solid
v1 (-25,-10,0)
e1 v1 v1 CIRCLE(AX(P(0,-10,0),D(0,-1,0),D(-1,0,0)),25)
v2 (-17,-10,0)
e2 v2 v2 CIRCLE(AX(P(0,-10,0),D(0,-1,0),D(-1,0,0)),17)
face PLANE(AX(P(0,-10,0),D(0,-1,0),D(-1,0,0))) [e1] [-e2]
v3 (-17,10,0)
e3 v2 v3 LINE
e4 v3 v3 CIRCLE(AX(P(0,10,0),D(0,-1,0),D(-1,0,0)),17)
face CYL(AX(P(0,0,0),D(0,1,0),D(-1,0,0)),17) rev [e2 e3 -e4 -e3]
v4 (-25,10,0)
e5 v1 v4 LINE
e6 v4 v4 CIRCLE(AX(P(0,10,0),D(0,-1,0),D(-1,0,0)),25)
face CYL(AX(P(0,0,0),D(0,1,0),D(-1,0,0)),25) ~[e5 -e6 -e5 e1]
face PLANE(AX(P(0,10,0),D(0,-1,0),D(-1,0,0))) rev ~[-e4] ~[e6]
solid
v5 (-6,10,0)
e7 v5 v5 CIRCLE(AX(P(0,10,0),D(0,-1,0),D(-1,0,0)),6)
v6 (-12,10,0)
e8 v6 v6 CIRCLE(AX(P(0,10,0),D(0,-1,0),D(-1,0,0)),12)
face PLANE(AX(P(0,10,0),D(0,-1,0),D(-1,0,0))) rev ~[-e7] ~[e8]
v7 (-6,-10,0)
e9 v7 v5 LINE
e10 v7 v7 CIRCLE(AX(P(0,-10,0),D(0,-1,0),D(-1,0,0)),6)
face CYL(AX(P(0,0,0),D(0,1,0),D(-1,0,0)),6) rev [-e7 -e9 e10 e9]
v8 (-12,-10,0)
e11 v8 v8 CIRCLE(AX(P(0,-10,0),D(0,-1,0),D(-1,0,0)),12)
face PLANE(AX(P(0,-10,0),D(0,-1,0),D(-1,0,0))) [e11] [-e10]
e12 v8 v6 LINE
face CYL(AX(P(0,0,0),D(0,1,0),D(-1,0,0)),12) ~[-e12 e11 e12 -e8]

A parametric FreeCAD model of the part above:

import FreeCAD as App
import Part
import Sketcher
from FreeCAD import Vector
Q = App.Units.Quantity

doc = App.newDocument("Part")
body = doc.addObject("PartDesign::Body", "Body")

sketch1 = body.newObject("Sketcher::SketchObject", "Sketch")
sketch1.AttachmentSupport = (doc.getObject("XY_Plane"), [""])
sketch1.MapMode = "FlatFace"
sketch1.addGeometry([
    Part.LineSegment(Vector(-25, 10, 0), Vector(-25, -10, 0)),
    Part.LineSegment(Vector(-25, -10, 0), Vector(-17, -10, 0)),
    Part.LineSegment(Vector(-17, -10, 0), Vector(-17, 10, 0)),
    Part.LineSegment(Vector(-17, 10, 0), Vector(-25, 10, 0)),
], False)
sketch1.addConstraint([
    Sketcher.Constraint("Coincident", 0, 2, 1, 1),
    Sketcher.Constraint("Coincident", 1, 2, 2, 1),
    Sketcher.Constraint("Coincident", 2, 2, 3, 1),
    Sketcher.Constraint("Coincident", 3, 2, 0, 1),
    Sketcher.Constraint("Vertical", 0),
    Sketcher.Constraint("Horizontal", 1),
    Sketcher.Constraint("Vertical", 2),
    Sketcher.Constraint("Horizontal", 3),
    Sketcher.Constraint("DistanceX", 1, 1, 1, 2, Q("8 mm")),
    Sketcher.Constraint("DistanceY", 0, 2, 0, 1, Q("20 mm")),
    Sketcher.Constraint("DistanceX", 0, 2, -1, 1, Q("25 mm")),
    Sketcher.Constraint("DistanceY", 0, 2, -1, 1, Q("10 mm")),
])
revolution = body.newObject("PartDesign::Revolution", "Revolution")
revolution.Profile = sketch1
revolution.ReferenceAxis = (sketch1, ["V_Axis"])
revolution.Angle = 360
body2 = doc.addObject("PartDesign::Body", "Body001")

sketch2 = body2.newObject("Sketcher::SketchObject", "Sketch001")
sketch2.AttachmentSupport = (doc.getObject("XY_Plane001"), [""])
sketch2.MapMode = "FlatFace"
sketch2.addGeometry([
    Part.LineSegment(Vector(-12, 10, 0), Vector(-12, -10, 0)),
    Part.LineSegment(Vector(-12, -10, 0), Vector(-6, -10, 0)),
    Part.LineSegment(Vector(-6, -10, 0), Vector(-6, 10, 0)),
    Part.LineSegment(Vector(-6, 10, 0), Vector(-12, 10, 0)),
], False)
sketch2.addConstraint([
    Sketcher.Constraint("Coincident", 0, 2, 1, 1),
    Sketcher.Constraint("Coincident", 1, 2, 2, 1),
    Sketcher.Constraint("Coincident", 2, 2, 3, 1),
    Sketcher.Constraint("Coincident", 3, 2, 0, 1),
    Sketcher.Constraint("Vertical", 0),
    Sketcher.Constraint("Horizontal", 1),
    Sketcher.Constraint("Vertical", 2),
    Sketcher.Constraint("Horizontal", 3),
    Sketcher.Constraint("DistanceX", 1, 1, 1, 2, Q("6 mm")),
    Sketcher.Constraint("DistanceY", 0, 2, 0, 1, Q("20 mm")),
    Sketcher.Constraint("DistanceX", 0, 2, -1, 1, Q("12 mm")),
    Sketcher.Constraint("DistanceY", 0, 2, -1, 1, Q("10 mm")),
])
revolution2 = body2.newObject("PartDesign::Revolution", "Revolution001")
revolution2.Profile = sketch2
revolution2.ReferenceAxis = (sketch2, ["V_Axis"])
revolution2.Angle = 360

doc.recompute()
